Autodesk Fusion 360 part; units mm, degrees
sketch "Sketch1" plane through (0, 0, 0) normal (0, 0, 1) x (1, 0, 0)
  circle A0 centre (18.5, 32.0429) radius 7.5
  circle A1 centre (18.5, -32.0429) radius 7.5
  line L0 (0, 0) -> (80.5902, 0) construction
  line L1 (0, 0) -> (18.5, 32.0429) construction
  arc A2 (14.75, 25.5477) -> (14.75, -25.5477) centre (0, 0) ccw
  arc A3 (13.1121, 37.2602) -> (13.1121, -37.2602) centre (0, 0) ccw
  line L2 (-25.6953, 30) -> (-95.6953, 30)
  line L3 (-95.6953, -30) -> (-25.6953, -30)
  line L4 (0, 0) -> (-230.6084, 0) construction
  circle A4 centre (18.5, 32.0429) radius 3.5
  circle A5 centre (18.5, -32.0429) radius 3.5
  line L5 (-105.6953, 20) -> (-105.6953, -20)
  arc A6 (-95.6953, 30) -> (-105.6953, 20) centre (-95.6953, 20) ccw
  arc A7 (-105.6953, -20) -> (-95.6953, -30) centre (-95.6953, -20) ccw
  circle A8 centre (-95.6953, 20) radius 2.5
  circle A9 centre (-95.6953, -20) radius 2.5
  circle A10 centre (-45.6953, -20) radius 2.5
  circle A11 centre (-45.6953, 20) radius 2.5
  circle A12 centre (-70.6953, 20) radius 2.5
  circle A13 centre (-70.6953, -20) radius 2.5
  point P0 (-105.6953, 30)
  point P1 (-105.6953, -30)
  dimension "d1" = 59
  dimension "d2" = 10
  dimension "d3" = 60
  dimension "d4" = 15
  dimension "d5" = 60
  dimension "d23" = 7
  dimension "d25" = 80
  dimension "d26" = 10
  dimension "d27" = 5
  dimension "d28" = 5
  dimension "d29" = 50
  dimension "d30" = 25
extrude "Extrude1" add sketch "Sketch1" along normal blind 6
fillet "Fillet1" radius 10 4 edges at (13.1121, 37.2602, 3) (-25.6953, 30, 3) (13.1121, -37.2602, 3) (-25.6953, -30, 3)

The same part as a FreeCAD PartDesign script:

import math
import FreeCAD as App
import Part
import Sketcher

V = App.Vector
Q = App.Units.Quantity


def edges_at(feature, points):
    """Names of the edges that pass closest to the given points."""
    edges = feature.Shape.Edges
    near = lambda p: min(range(len(edges)), key=lambda i: edges[i].distToShape(Part.Vertex(*p))[0])
    return sorted({f"Edge{near(p) + 1}" for p in points})

doc = App.newDocument("Part")
body = doc.addObject("PartDesign::Body", "Body")

# Sketch on XY plane
sketch1 = body.newObject("Sketcher::SketchObject", "Sketch")
sketch1.AttachmentSupport = (doc.getObject("XY_Plane"), [""])
sketch1.MapMode = "FlatFace"
sketch1.addGeometry(Part.ArcOfCircle(Part.Circle(V(18.5, 32, 0), V(0, 0, 1), 7.5), math.radians(-120), math.radians(136)), False)
sketch1.addGeometry(Part.ArcOfCircle(Part.Circle(V(0, 0, 0), V(0, 0, 1), 39.5), math.radians(71), math.radians(131)), False)
sketch1.addGeometry(Part.LineSegment(V(-25.7, 30, 0), V(-95.7, 30, 0)), False)
sketch1.addGeometry(Part.ArcOfCircle(Part.Circle(V(-95.7, 20, 0), V(0, 0, 1), 10), math.radians(90), math.radians(180)), False)
sketch1.addGeometry(Part.LineSegment(V(-105.7, 20, 0), V(-105.7, -20, 0)), False)
sketch1.addGeometry(Part.ArcOfCircle(Part.Circle(V(-95.7, -20, 0), V(0, 0, 1), 10), math.radians(180), math.radians(270)), False)
sketch1.addGeometry(Part.LineSegment(V(-95.7, -30, 0), V(-25.7, -30, 0)), False)
sketch1.addGeometry(Part.ArcOfCircle(Part.Circle(V(0, 0, 0), V(0, 0, 1), 39.5), math.radians(-131), math.radians(-71)), False)
sketch1.addGeometry(Part.ArcOfCircle(Part.Circle(V(18.5, -32, 0), V(0, 0, 1), 7.5), math.radians(-136), math.radians(120)), False)
sketch1.addGeometry(Part.ArcOfCircle(Part.Circle(V(0, 0, 0), V(0, 0, 1), 29.5), math.radians(60), math.radians(300)), False)
sketch1.addGeometry(Part.Circle(V(18.5, 32, 0), V(0, 0, 1), 3.5), False)
sketch1.addGeometry(Part.Circle(V(18.5, -32, 0), V(0, 0, 1), 3.5), False)
sketch1.addGeometry(Part.Circle(V(-45.7, 20, 0), V(0, 0, 1), 2.5), False)
sketch1.addGeometry(Part.Circle(V(-95.7, -20, 0), V(0, 0, 1), 2.5), False)
sketch1.addGeometry(Part.Circle(V(-70.7, -20, 0), V(0, 0, 1), 2.5), False)
sketch1.addGeometry(Part.Circle(V(-45.7, -20, 0), V(0, 0, 1), 2.5), False)
sketch1.addGeometry(Part.Circle(V(-95.7, 20, 0), V(0, 0, 1), 2.5), False)
sketch1.addGeometry(Part.Circle(V(-70.7, 20, 0), V(0, 0, 1), 2.5), False)
sketch1.addConstraint(Sketcher.Constraint("Coincident", 0, 2, 1, 1))
sketch1.addConstraint(Sketcher.Constraint("Coincident", 1, 2, 2, 1))
sketch1.addConstraint(Sketcher.Constraint("Tangent", 2, 2, 3, 1))
sketch1.addConstraint(Sketcher.Constraint("Tangent", 3, 2, 4, 1))
sketch1.addConstraint(Sketcher.Constraint("Tangent", 4, 2, 5, 1))
sketch1.addConstraint(Sketcher.Constraint("Tangent", 5, 2, 6, 1))
sketch1.addConstraint(Sketcher.Constraint("Coincident", 6, 2, 7, 1))
sketch1.addConstraint(Sketcher.Constraint("Coincident", 7, 2, 8, 1))
sketch1.addConstraint(Sketcher.Constraint("Tangent", 8, 2, 9, 2))
sketch1.addConstraint(Sketcher.Constraint("Tangent", 9, 1, 0, 1))
sketch1.addConstraint(Sketcher.Constraint("Horizontal", 2))
sketch1.addConstraint(Sketcher.Constraint("Vertical", 4))
sketch1.addConstraint(Sketcher.Constraint("Horizontal", 6))
sketch1.addConstraint(Sketcher.Constraint("Coincident", 1, 3, -1, 1))
sketch1.addConstraint(Sketcher.Constraint("Coincident", 7, 3, -1, 1))
sketch1.addConstraint(Sketcher.Constraint("Coincident", 9, 3, -1, 1))
sketch1.addConstraint(Sketcher.Constraint("Coincident", 10, 3, 0, 3))
sketch1.addConstraint(Sketcher.Constraint("Coincident", 11, 3, 8, 3))
sketch1.addConstraint(Sketcher.Constraint("Coincident", 13, 3, 5, 3))
sketch1.addConstraint(Sketcher.Constraint("Coincident", 16, 3, 3, 3))
sketch1.addConstraint(Sketcher.Constraint("Equal", 3, 5))
sketch1.addConstraint(Sketcher.Constraint("Equal", 1, 7))
sketch1.addConstraint(Sketcher.Constraint("Equal", 0, 8))
sketch1.addConstraint(Sketcher.Constraint("Equal", 10, 11))
sketch1.addConstraint(Sketcher.Constraint("Equal", 12, 13))
sketch1.addConstraint(Sketcher.Constraint("Equal", 13, 14))
sketch1.addConstraint(Sketcher.Constraint("Equal", 14, 15))
sketch1.addConstraint(Sketcher.Constraint("Equal", 15, 16))
sketch1.addConstraint(Sketcher.Constraint("Equal", 16, 17))
sketch1.addConstraint(Sketcher.Constraint("Symmetric", 12, 3, 15, 3, -1))
sketch1.addConstraint(Sketcher.Constraint("Symmetric", 14, 3, 17, 3, -1))
sketch1.addConstraint(Sketcher.Constraint("Horizontal", 3, 3, 12, 3))
sketch1.addConstraint(Sketcher.Constraint("Horizontal", 13, 3, 14, 3))
sketch1.addConstraint(Sketcher.Constraint("Horizontal", 14, 3, 15, 3))
sketch1.addConstraint(Sketcher.Constraint("Vertical", 0, 3, 8, 3))
sketch1.addConstraint(Sketcher.Constraint("Diameter", 10, Q("7 mm")))
sketch1.addConstraint(Sketcher.Constraint("Diameter", 12, Q("5 mm")))
sketch1.addConstraint(Sketcher.Constraint("Radius", 3, Q("10 mm")))
sketch1.addConstraint(Sketcher.Constraint("Radius", 0, Q("7.5 mm")))
sketch1.addConstraint(Sketcher.Constraint("Radius", 9, Q("29.5 mm")))
sketch1.addConstraint(Sketcher.Constraint("DistanceX", 3, 3, 12, 3, Q("50 mm")))
sketch1.addConstraint(Sketcher.Constraint("DistanceX", 5, 3, 14, 3, Q("25 mm")))
sketch1.addConstraint(Sketcher.Constraint("DistanceY", 5, 3, 2, 2, Q("50 mm")))
sketch1.addConstraint(Sketcher.Constraint("Radius", 1, Q("39.5 mm")))
sketch1.addConstraint(Sketcher.Constraint("DistanceX", 2, 2, 2, 1, Q("70 mm")))
sketch1.addConstraint(Sketcher.Constraint("DistanceX", -1, 1, 0, 3, Q("18.5 mm")))
pad1 = body.newObject("PartDesign::Pad", "Pad")
pad1.Profile = sketch1
pad1.Length = 6
doc.recompute()

fillet = body.newObject("PartDesign::Fillet", "Fillet")
fillet.Base = (pad1, edges_at(pad1, [
    (13.112, 37.26, 3),
    (-25.695, 30, 3),
    (13.112, -37.26, 3),
    (-25.695, -30, 3),
]))
fillet.Radius = 10

doc.recompute()
